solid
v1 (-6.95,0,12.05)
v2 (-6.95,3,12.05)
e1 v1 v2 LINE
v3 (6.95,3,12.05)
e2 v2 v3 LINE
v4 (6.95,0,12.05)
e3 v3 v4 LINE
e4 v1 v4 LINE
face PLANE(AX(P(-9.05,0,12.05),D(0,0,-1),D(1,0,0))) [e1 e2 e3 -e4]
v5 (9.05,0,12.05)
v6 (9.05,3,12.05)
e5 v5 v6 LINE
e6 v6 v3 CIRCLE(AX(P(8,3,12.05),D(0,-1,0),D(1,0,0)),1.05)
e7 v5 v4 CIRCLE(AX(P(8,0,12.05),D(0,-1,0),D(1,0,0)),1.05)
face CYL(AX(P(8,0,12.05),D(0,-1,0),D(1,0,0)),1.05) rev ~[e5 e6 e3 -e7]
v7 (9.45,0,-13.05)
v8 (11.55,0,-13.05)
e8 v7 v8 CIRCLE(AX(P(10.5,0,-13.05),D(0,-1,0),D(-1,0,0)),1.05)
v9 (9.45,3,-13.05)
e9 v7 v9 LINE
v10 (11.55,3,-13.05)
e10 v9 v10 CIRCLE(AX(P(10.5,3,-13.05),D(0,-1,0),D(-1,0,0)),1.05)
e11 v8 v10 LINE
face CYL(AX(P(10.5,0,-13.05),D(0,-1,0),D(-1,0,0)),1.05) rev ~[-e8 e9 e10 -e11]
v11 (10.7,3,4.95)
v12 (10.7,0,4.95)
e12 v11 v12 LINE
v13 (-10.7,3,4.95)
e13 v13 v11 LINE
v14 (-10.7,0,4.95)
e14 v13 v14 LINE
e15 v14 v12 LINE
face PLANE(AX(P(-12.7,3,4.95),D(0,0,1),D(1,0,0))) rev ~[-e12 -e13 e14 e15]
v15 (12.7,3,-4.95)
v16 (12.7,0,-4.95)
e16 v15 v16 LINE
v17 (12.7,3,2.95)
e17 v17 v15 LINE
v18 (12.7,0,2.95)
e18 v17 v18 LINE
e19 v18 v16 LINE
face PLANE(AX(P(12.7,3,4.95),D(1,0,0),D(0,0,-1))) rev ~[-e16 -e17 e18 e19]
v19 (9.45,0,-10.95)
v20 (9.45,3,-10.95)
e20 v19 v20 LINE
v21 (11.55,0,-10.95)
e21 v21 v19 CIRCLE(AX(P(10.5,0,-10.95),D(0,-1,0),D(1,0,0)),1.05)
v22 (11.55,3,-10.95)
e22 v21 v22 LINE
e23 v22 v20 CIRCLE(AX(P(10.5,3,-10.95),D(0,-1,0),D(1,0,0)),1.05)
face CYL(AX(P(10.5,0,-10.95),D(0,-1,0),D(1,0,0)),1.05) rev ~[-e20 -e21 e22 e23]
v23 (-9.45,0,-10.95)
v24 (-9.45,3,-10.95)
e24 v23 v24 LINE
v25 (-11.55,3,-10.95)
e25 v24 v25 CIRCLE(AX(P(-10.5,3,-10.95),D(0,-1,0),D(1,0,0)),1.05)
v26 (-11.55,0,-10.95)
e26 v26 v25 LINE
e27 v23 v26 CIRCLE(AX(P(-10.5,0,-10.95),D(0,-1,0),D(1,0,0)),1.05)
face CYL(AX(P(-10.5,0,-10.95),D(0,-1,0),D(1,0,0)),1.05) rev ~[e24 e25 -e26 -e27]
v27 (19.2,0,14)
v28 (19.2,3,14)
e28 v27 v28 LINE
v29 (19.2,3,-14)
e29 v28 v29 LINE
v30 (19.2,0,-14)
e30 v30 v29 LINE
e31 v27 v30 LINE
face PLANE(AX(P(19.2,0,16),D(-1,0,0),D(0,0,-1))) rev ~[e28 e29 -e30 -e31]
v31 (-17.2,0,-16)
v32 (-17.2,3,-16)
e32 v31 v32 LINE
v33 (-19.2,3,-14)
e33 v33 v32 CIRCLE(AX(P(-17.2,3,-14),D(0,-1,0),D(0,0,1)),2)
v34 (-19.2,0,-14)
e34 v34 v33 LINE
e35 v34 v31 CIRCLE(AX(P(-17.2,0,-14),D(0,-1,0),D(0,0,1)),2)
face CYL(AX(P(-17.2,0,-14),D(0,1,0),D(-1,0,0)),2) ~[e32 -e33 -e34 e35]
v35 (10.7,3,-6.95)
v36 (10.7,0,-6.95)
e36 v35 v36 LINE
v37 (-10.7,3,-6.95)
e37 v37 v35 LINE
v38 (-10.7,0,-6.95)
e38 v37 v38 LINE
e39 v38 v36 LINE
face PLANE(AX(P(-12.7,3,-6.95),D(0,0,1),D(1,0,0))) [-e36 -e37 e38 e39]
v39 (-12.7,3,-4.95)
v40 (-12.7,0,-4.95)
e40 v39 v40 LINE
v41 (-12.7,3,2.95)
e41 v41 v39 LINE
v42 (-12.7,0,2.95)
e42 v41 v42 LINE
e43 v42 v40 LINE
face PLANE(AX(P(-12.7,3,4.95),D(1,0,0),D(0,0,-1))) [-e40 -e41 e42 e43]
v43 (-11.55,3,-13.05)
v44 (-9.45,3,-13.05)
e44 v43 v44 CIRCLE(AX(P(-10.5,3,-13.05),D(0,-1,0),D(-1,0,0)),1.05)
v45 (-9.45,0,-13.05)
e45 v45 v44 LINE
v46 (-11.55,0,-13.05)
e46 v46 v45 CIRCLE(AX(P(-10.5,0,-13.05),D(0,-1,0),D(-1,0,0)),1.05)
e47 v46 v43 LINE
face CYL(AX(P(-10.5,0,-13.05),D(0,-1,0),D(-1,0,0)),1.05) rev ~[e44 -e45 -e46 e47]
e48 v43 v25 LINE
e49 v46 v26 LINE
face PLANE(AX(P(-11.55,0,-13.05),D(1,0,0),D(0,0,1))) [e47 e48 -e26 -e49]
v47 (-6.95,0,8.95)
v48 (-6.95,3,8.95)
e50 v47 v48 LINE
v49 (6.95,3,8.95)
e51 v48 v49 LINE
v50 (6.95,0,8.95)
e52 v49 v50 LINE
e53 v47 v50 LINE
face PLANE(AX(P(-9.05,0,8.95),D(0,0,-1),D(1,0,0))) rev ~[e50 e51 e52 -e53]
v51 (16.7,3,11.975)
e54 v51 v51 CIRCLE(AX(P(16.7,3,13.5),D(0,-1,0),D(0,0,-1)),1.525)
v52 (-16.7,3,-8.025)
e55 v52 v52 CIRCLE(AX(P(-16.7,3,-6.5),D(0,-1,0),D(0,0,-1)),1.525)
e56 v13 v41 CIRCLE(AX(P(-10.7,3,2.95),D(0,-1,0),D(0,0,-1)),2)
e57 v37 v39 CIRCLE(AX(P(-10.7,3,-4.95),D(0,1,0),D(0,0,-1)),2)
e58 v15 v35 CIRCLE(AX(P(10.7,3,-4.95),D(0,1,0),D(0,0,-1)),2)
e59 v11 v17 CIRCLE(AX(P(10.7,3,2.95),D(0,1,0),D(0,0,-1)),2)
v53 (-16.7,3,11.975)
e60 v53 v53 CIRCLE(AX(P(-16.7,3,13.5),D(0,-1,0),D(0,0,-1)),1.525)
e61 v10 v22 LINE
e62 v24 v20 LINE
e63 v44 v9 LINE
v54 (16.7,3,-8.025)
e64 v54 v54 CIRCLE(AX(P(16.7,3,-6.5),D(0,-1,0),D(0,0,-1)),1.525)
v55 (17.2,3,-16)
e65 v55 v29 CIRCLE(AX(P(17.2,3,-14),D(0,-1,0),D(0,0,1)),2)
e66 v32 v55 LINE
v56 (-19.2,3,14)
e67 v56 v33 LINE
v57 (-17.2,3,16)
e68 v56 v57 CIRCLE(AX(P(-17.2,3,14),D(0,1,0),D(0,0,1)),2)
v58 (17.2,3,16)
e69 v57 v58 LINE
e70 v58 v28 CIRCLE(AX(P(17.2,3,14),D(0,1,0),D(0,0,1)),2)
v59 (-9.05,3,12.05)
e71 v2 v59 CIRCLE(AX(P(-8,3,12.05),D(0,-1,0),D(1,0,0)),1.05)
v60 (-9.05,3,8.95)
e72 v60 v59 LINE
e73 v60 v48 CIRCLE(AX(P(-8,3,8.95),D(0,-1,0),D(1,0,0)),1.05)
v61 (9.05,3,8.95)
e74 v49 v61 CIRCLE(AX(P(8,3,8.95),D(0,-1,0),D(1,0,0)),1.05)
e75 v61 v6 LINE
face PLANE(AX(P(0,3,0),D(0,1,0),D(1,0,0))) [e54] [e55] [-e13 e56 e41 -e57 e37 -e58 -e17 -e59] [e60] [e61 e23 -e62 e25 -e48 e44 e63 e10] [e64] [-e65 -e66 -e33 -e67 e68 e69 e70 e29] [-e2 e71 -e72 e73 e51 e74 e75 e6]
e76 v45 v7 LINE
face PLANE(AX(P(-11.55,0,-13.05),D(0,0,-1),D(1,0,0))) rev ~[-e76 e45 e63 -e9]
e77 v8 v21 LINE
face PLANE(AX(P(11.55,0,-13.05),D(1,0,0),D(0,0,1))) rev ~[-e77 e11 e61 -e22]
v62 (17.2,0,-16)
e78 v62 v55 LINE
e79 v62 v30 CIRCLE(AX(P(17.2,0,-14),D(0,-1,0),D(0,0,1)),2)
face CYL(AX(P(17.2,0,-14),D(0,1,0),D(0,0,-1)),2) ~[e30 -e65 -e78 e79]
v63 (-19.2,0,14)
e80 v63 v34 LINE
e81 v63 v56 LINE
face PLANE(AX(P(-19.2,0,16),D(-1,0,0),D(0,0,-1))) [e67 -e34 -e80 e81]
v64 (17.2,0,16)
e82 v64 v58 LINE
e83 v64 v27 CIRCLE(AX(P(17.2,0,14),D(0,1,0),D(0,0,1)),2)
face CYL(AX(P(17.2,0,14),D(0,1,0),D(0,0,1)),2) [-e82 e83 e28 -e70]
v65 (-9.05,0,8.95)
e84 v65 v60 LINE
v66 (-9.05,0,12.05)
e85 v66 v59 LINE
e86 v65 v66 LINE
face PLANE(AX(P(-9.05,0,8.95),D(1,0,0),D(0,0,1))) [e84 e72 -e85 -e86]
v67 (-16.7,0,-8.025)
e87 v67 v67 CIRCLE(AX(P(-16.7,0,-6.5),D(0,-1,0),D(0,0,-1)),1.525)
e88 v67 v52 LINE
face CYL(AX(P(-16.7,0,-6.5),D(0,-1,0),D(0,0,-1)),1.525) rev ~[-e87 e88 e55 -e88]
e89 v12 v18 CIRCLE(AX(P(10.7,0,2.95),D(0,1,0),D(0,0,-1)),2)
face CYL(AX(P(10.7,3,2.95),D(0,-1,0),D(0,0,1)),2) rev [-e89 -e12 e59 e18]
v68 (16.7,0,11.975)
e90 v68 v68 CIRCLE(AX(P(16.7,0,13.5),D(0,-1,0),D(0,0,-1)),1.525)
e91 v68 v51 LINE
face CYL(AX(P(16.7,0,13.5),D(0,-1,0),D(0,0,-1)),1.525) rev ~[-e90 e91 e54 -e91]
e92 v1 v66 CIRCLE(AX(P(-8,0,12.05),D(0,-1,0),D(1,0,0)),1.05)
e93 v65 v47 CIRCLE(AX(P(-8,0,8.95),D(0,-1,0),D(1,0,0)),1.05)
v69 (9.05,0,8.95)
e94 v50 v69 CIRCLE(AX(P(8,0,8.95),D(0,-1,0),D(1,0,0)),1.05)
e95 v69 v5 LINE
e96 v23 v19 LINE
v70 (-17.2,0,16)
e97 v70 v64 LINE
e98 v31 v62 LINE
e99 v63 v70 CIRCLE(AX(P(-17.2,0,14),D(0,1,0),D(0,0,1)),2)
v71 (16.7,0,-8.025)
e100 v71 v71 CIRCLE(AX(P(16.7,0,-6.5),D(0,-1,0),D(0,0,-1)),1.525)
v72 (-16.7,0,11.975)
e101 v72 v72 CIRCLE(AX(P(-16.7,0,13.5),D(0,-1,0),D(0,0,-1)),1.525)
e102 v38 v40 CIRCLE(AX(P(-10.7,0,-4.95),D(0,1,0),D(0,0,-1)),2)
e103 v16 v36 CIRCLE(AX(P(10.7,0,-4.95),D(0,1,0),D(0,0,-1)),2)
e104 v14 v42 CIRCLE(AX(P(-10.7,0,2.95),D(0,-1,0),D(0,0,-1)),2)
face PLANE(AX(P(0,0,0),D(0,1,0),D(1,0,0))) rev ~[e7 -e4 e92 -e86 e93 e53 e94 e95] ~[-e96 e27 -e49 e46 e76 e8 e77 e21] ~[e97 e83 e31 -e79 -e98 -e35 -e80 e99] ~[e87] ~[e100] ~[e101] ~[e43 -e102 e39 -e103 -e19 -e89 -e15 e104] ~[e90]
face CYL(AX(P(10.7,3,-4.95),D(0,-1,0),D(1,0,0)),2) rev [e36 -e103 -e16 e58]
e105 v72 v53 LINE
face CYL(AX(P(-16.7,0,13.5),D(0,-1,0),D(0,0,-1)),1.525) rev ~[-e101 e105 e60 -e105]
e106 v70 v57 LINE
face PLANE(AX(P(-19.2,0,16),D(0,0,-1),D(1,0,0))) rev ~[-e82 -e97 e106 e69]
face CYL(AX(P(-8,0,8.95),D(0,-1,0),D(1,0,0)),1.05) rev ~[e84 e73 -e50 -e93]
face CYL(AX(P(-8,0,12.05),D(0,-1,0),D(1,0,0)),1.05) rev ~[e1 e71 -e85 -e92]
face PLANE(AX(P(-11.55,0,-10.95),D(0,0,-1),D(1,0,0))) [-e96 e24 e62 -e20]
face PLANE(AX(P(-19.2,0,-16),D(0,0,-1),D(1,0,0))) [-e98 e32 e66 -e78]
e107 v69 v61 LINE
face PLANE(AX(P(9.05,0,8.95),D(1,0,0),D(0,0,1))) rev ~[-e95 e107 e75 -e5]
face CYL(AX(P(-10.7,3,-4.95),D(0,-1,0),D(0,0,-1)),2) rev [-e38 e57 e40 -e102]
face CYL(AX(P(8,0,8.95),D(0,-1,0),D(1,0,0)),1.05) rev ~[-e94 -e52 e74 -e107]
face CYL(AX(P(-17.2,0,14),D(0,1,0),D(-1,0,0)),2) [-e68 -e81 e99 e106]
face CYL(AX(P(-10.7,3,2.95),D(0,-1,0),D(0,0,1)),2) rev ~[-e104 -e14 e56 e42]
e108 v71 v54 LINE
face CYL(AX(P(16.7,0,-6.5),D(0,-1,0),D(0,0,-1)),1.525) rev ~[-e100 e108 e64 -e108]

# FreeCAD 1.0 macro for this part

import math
import FreeCAD as App
import Part
import Sketcher

V = App.Vector
Q = App.Units.Quantity


def edges_at(feature, points):
    """Names of the edges that pass closest to the given points."""
    edges = feature.Shape.Edges
    near = lambda p: min(range(len(edges)), key=lambda i: edges[i].distToShape(Part.Vertex(*p))[0])
    return sorted({f"Edge{near(p) + 1}" for p in points})


def add_polygon(sketch, points):
    """Adds a closed chain of lines whose ends are joined by coincident constraints."""
    first, n = sketch.GeometryCount, len(points)
    for a, b in zip(points, points[1:] + points[:1]):
        sketch.addGeometry(Part.LineSegment(App.Vector(*a, 0), App.Vector(*b, 0)), False)
    for i in range(n):
        sketch.addConstraint(Sketcher.Constraint("Coincident", first + i, 2, first + (i + 1) % n, 1))

doc = App.newDocument("Part")
body = doc.addObject("PartDesign::Body", "Body")

# Sketch on XZ plane
sketch1 = doc.addObject("Sketcher::SketchObject", "Sketch")
body.addObject(sketch1)
sketch1.AttachmentSupport = (doc.XZ_Plane, [""])
sketch1.MapMode = "FlatFace"
add_polygon(sketch1, [(-19.2, -16), (-19.2, 16), (19.2, 16), (19.2, -16)])  # lines 0-3
sketch1.addConstraint(Sketcher.Constraint("Vertical", 0))
sketch1.addConstraint(Sketcher.Constraint("Horizontal", 1))
sketch1.addConstraint(Sketcher.Constraint("Vertical", 2))
sketch1.addConstraint(Sketcher.Constraint("Horizontal", 3))
sketch1.addConstraint(Sketcher.Constraint("Symmetric", 0, 2, 2, 2, -1, 1))
sketch1.addConstraint(Sketcher.Constraint("DistanceY", 0, 1, 0, 2, Q("32 mm")))
sketch1.addConstraint(Sketcher.Constraint("DistanceX", 1, 1, 1, 2, Q("38.4 mm")))
pad1 = doc.addObject("PartDesign::Pad", "Pad")
body.addObject(pad1)
pad1.Profile = sketch1
pad1.Length = 3
pad1.Reversed = True

# Sketch on XZ plane
sketch2 = doc.addObject("Sketcher::SketchObject", "Sketch001")
body.addObject(sketch2)
sketch2.AttachmentSupport = (doc.XZ_Plane, [""])
sketch2.MapMode = "FlatFace"
sketch2.addGeometry(Part.Circle(V(-16.7, 13.5, 0), V(0, 0, 1), 1.525), False)
sketch2.addGeometry(Part.Circle(V(16.7, 13.5, 0), V(0, 0, 1), 1.525), False)
sketch2.addGeometry(Part.Circle(V(-16.7, -6.5, 0), V(0, 0, 1), 1.525), False)
sketch2.addGeometry(Part.Circle(V(16.7, -6.5, 0), V(0, 0, 1), 1.525), False)
sketch2.addConstraint(Sketcher.Constraint("Equal", 0, 1))
sketch2.addConstraint(Sketcher.Constraint("Equal", 1, 2))
sketch2.addConstraint(Sketcher.Constraint("Equal", 2, 3))
sketch2.addConstraint(Sketcher.Constraint("Symmetric", 0, 3, 1, 3, -2))
sketch2.addConstraint(Sketcher.Constraint("Symmetric", 2, 3, 3, 3, -2))
sketch2.addConstraint(Sketcher.Constraint("Vertical", 0, 3, 2, 3))
sketch2.addConstraint(Sketcher.Constraint("Diameter", 0, Q("3.05 mm")))
sketch2.addConstraint(Sketcher.Constraint("DistanceY", 2, 3, 0, 3, Q("20 mm")))
sketch2.addConstraint(Sketcher.Constraint("DistanceX", 0, 3, -1, 1, Q("16.7 mm")))
sketch2.addConstraint(Sketcher.Constraint("DistanceY", -1, 1, 0, 3, Q("13.5 mm")))
pocket1 = doc.addObject("PartDesign::Pocket", "Pocket")
body.addObject(pocket1)
pocket1.Profile = sketch2
pocket1.Length = 3

# Sketch on XZ plane
sketch3 = doc.addObject("Sketcher::SketchObject", "Sketch002")
body.addObject(sketch3)
sketch3.AttachmentSupport = (doc.XZ_Plane, [""])
sketch3.MapMode = "FlatFace"
add_polygon(sketch3, [(-11.55, -10.95), (-11.55, -13.05), (11.55, -13.05), (11.55, -10.95)])  # lines 0-3
sketch3.addConstraint(Sketcher.Constraint("Vertical", 0))
sketch3.addConstraint(Sketcher.Constraint("Horizontal", 1))
sketch3.addConstraint(Sketcher.Constraint("Vertical", 2))
sketch3.addConstraint(Sketcher.Constraint("Horizontal", 3))
sketch3.addConstraint(Sketcher.Constraint("DistanceX", 1, 1, 1, 2, Q("23.1 mm")))
sketch3.addConstraint(Sketcher.Constraint("DistanceY", 0, 2, 0, 1, Q("2.1 mm")))
sketch3.addConstraint(Sketcher.Constraint("DistanceX", 0, 2, -1, 1, Q("11.55 mm")))
sketch3.addConstraint(Sketcher.Constraint("DistanceY", 0, 2, -1, 1, Q("13.05 mm")))
pocket2 = doc.addObject("PartDesign::Pocket", "Pocket001")
body.addObject(pocket2)
pocket2.Profile = sketch3
pocket2.Length = 3

# Sketch on XZ plane
sketch4 = doc.addObject("Sketcher::SketchObject", "Sketch003")
body.addObject(sketch4)
sketch4.AttachmentSupport = (doc.XZ_Plane, [""])
sketch4.MapMode = "FlatFace"
sketch4.addGeometry(Part.ArcOfCircle(Part.Circle(V(-10.5, -13.05, 0), V(0, 0, 1), 1.05), math.radians(0), math.radians(90)), False)
sketch4.addGeometry(Part.ArcOfCircle(Part.Circle(V(-10.5, -13.05, 0), V(0, 0, 1), 1.05), math.radians(90), math.radians(180)), False)
sketch4.addGeometry(Part.ArcOfCircle(Part.Circle(V(-10.5, -13.05, 0), V(0, 0, 1), 1.05), math.radians(180), math.radians(360)), False)
sketch4.addGeometry(Part.ArcOfCircle(Part.Circle(V(-10.5, -10.95, 0), V(0, 0, 1), 1.05), math.radians(0), math.radians(180)), False)
sketch4.addGeometry(Part.ArcOfCircle(Part.Circle(V(-10.5, -10.95, 0), V(0, 0, 1), 1.05), math.radians(-180), math.radians(-90)), False)
sketch4.addGeometry(Part.ArcOfCircle(Part.Circle(V(-10.5, -10.95, 0), V(0, 0, 1), 1.05), math.radians(-90), math.radians(0)), False)
sketch4.addGeometry(Part.ArcOfCircle(Part.Circle(V(10.5, -10.95, 0), V(0, 0, 1), 1.05), math.radians(0), math.radians(180)), False)
sketch4.addGeometry(Part.ArcOfCircle(Part.Circle(V(10.5, -10.95, 0), V(0, 0, 1), 1.05), math.radians(-180), math.radians(-90)), False)
sketch4.addGeometry(Part.ArcOfCircle(Part.Circle(V(10.5, -10.95, 0), V(0, 0, 1), 1.05), math.radians(-90), math.radians(0)), False)
sketch4.addGeometry(Part.ArcOfCircle(Part.Circle(V(10.5, -13.05, 0), V(0, 0, 1), 1.05), math.radians(0), math.radians(90)), False)
sketch4.addGeometry(Part.ArcOfCircle(Part.Circle(V(10.5, -13.05, 0), V(0, 0, 1), 1.05), math.radians(90), math.radians(180)), False)
sketch4.addGeometry(Part.ArcOfCircle(Part.Circle(V(10.5, -13.05, 0), V(0, 0, 1), 1.05), math.radians(180), math.radians(360)), False)
sketch4.addConstraint(Sketcher.Constraint("Tangent", 0, 2, 1, 1))
sketch4.addConstraint(Sketcher.Constraint("Tangent", 1, 2, 2, 1))
sketch4.addConstraint(Sketcher.Constraint("Tangent", 2, 2, 0, 1))
sketch4.addConstraint(Sketcher.Constraint("Tangent", 3, 2, 4, 1))
sketch4.addConstraint(Sketcher.Constraint("Tangent", 4, 2, 5, 1))
sketch4.addConstraint(Sketcher.Constraint("Tangent", 5, 2, 3, 1))
sketch4.addConstraint(Sketcher.Constraint("Tangent", 6, 2, 7, 1))
sketch4.addConstraint(Sketcher.Constraint("Tangent", 7, 2, 8, 1))
sketch4.addConstraint(Sketcher.Constraint("Tangent", 8, 2, 6, 1))
sketch4.addConstraint(Sketcher.Constraint("Tangent", 9, 2, 10, 1))
sketch4.addConstraint(Sketcher.Constraint("Tangent", 10, 2, 11, 1))
sketch4.addConstraint(Sketcher.Constraint("Tangent", 11, 2, 9, 1))
sketch4.addConstraint(Sketcher.Constraint("Coincident", 4, 2, 0, 2))
sketch4.addConstraint(Sketcher.Constraint("Coincident", 9, 2, 7, 2))
sketch4.addConstraint(Sketcher.Constraint("Equal", 2, 3))
sketch4.addConstraint(Sketcher.Constraint("Equal", 5, 6))
sketch4.addConstraint(Sketcher.Constraint("Equal", 8, 9))
sketch4.addConstraint(Sketcher.Constraint("Symmetric", 3, 3, 6, 3, -2))
sketch4.addConstraint(Sketcher.Constraint("Symmetric", 2, 2, 10, 2, -2))
sketch4.addConstraint(Sketcher.Constraint("Horizontal", 11, 3, 1, 2))
sketch4.addConstraint(Sketcher.Constraint("Horizontal", 1, 2, 2, 2))
sketch4.addConstraint(Sketcher.Constraint("Horizontal", 8, 3, 3, 2))
sketch4.addConstraint(Sketcher.Constraint("Horizontal", 3, 2, 5, 2))
sketch4.addConstraint(Sketcher.Constraint("Horizontal", 5, 2, 6, 2))
sketch4.addConstraint(Sketcher.Constraint("Horizontal", 6, 2, 8, 2))
sketch4.addConstraint(Sketcher.Constraint("Horizontal", 10, 2, 11, 2))
sketch4.addConstraint(Sketcher.Constraint("Vertical", 2, 3, 3, 3))
sketch4.addConstraint(Sketcher.Constraint("Vertical", 5, 3, 0, 2))
sketch4.addConstraint(Sketcher.Constraint("Vertical", 11, 3, 7, 2))
sketch4.addConstraint(Sketcher.Constraint("Radius", 0, Q("1.05 mm")))
sketch4.addConstraint(Sketcher.Constraint("DistanceY", 0, 2, -1, 1, Q("12 mm")))
sketch4.addConstraint(Sketcher.Constraint("DistanceX", 4, 3, 6, 3, Q("21 mm")))
pocket3 = doc.addObject("PartDesign::Pocket", "Pocket002")
body.addObject(pocket3)
pocket3.Profile = sketch4
pocket3.Length = 3

# Sketch on XZ plane
sketch5 = doc.addObject("Sketcher::SketchObject", "Sketch004")
body.addObject(sketch5)
sketch5.AttachmentSupport = (doc.XZ_Plane, [""])
sketch5.MapMode = "FlatFace"
add_polygon(sketch5, [(-9.05, 12.05), (-9.05, 8.95), (9.05, 8.95), (9.05, 12.05)])  # lines 0-3
sketch5.addConstraint(Sketcher.Constraint("Vertical", 0))
sketch5.addConstraint(Sketcher.Constraint("Horizontal", 1))
sketch5.addConstraint(Sketcher.Constraint("Vertical", 2))
sketch5.addConstraint(Sketcher.Constraint("Horizontal", 3))
sketch5.addConstraint(Sketcher.Constraint("DistanceX", 1, 1, 1, 2, Q("18.1 mm")))
sketch5.addConstraint(Sketcher.Constraint("DistanceY", 0, 2, 0, 1, Q("3.1 mm")))
sketch5.addConstraint(Sketcher.Constraint("DistanceX", 0, 2, -1, 1, Q("9.05 mm")))
sketch5.addConstraint(Sketcher.Constraint("DistanceY", -1, 1, 0, 2, Q("8.95 mm")))
pocket4 = doc.addObject("PartDesign::Pocket", "Pocket003")
body.addObject(pocket4)
pocket4.Profile = sketch5
pocket4.Length = 3

# Sketch on XZ plane
sketch6 = doc.addObject("Sketcher::SketchObject", "Sketch005")
body.addObject(sketch6)
sketch6.AttachmentSupport = (doc.XZ_Plane, [""])
sketch6.MapMode = "FlatFace"
sketch6.addGeometry(Part.Circle(V(-8, 8.95, 0), V(0, 0, 1), 1.05), False)
sketch6.addGeometry(Part.Circle(V(-8, 12.05, 0), V(0, 0, 1), 1.05), False)
sketch6.addGeometry(Part.Circle(V(8, 12.05, 0), V(0, 0, 1), 1.05), False)
sketch6.addGeometry(Part.Circle(V(8, 8.95, 0), V(0, 0, 1), 1.05), False)
sketch6.addConstraint(Sketcher.Constraint("Equal", 0, 1))
sketch6.addConstraint(Sketcher.Constraint("Equal", 1, 2))
sketch6.addConstraint(Sketcher.Constraint("Equal", 2, 3))
sketch6.addConstraint(Sketcher.Constraint("Symmetric", 1, 3, 2, 3, -2))
sketch6.addConstraint(Sketcher.Constraint("Symmetric", 0, 3, 3, 3, -2))
sketch6.addConstraint(Sketcher.Constraint("Vertical", 0, 3, 1, 3))
sketch6.addConstraint(Sketcher.Constraint("Diameter", 0, Q("2.1 mm")))
sketch6.addConstraint(Sketcher.Constraint("DistanceX", 0, 3, -1, 1, Q("8 mm")))
sketch6.addConstraint(Sketcher.Constraint("DistanceY", 0, 3, 1, 3, Q("3.1 mm")))
sketch6.addConstraint(Sketcher.Constraint("DistanceY", -1, 1, 0, 3, Q("8.95 mm")))
pocket5 = doc.addObject("PartDesign::Pocket", "Pocket004")
body.addObject(pocket5)
pocket5.Profile = sketch6
pocket5.Length = 3

# Sketch on XZ plane
sketch7 = doc.addObject("Sketcher::SketchObject", "Sketch006")
body.addObject(sketch7)
sketch7.AttachmentSupport = (doc.XZ_Plane, [""])
sketch7.MapMode = "FlatFace"
sketch7.AttachmentOffset = App.Placement(V(0, 0, -3), App.Rotation())
add_polygon(sketch7, [(-12.7, -6.95), (-12.7, 4.95), (12.7, 4.95), (12.7, -6.95)])  # lines 0-3
sketch7.addConstraint(Sketcher.Constraint("Vertical", 0))
sketch7.addConstraint(Sketcher.Constraint("Horizontal", 1))
sketch7.addConstraint(Sketcher.Constraint("Vertical", 2))
sketch7.addConstraint(Sketcher.Constraint("Horizontal", 3))
sketch7.addConstraint(Sketcher.Constraint("DistanceX", 1, 1, 1, 2, Q("25.4 mm")))
sketch7.addConstraint(Sketcher.Constraint("DistanceY", 0, 1, 0, 2, Q("11.9 mm")))
sketch7.addConstraint(Sketcher.Constraint("DistanceX", 0, 2, -1, 1, Q("12.7 mm")))
sketch7.addConstraint(Sketcher.Constraint("DistanceY", -1, 1, 0, 2, Q("4.95 mm")))
pocket6 = doc.addObject("PartDesign::Pocket", "Pocket005")
body.addObject(pocket6)
pocket6.Profile = sketch7
pocket6.Length = 3
pocket6.Reversed = True
doc.recompute()

fillet = doc.addObject("PartDesign::Fillet", "Fillet")
body.addObject(fillet)
fillet.Base = (pocket6, edges_at(pocket6, [
    (-12.7, 1.5, -6.95),
    (-12.7, 1.5, 4.95),
    (12.7, 1.5, 4.95),
    (12.7, 1.5, -6.95),
]))
fillet.Radius = 2
doc.recompute()

fillet2 = doc.addObject("PartDesign::Fillet", "Fillet001")
body.addObject(fillet2)
fillet2.Base = (fillet, edges_at(fillet, [
    (19.2, 1.5, 16),
    (-19.2, 1.5, 16),
    (-19.2, 1.5, -16),
    (19.2, 1.5, -16),
]))
fillet2.Radius = 2

doc.recompute()
